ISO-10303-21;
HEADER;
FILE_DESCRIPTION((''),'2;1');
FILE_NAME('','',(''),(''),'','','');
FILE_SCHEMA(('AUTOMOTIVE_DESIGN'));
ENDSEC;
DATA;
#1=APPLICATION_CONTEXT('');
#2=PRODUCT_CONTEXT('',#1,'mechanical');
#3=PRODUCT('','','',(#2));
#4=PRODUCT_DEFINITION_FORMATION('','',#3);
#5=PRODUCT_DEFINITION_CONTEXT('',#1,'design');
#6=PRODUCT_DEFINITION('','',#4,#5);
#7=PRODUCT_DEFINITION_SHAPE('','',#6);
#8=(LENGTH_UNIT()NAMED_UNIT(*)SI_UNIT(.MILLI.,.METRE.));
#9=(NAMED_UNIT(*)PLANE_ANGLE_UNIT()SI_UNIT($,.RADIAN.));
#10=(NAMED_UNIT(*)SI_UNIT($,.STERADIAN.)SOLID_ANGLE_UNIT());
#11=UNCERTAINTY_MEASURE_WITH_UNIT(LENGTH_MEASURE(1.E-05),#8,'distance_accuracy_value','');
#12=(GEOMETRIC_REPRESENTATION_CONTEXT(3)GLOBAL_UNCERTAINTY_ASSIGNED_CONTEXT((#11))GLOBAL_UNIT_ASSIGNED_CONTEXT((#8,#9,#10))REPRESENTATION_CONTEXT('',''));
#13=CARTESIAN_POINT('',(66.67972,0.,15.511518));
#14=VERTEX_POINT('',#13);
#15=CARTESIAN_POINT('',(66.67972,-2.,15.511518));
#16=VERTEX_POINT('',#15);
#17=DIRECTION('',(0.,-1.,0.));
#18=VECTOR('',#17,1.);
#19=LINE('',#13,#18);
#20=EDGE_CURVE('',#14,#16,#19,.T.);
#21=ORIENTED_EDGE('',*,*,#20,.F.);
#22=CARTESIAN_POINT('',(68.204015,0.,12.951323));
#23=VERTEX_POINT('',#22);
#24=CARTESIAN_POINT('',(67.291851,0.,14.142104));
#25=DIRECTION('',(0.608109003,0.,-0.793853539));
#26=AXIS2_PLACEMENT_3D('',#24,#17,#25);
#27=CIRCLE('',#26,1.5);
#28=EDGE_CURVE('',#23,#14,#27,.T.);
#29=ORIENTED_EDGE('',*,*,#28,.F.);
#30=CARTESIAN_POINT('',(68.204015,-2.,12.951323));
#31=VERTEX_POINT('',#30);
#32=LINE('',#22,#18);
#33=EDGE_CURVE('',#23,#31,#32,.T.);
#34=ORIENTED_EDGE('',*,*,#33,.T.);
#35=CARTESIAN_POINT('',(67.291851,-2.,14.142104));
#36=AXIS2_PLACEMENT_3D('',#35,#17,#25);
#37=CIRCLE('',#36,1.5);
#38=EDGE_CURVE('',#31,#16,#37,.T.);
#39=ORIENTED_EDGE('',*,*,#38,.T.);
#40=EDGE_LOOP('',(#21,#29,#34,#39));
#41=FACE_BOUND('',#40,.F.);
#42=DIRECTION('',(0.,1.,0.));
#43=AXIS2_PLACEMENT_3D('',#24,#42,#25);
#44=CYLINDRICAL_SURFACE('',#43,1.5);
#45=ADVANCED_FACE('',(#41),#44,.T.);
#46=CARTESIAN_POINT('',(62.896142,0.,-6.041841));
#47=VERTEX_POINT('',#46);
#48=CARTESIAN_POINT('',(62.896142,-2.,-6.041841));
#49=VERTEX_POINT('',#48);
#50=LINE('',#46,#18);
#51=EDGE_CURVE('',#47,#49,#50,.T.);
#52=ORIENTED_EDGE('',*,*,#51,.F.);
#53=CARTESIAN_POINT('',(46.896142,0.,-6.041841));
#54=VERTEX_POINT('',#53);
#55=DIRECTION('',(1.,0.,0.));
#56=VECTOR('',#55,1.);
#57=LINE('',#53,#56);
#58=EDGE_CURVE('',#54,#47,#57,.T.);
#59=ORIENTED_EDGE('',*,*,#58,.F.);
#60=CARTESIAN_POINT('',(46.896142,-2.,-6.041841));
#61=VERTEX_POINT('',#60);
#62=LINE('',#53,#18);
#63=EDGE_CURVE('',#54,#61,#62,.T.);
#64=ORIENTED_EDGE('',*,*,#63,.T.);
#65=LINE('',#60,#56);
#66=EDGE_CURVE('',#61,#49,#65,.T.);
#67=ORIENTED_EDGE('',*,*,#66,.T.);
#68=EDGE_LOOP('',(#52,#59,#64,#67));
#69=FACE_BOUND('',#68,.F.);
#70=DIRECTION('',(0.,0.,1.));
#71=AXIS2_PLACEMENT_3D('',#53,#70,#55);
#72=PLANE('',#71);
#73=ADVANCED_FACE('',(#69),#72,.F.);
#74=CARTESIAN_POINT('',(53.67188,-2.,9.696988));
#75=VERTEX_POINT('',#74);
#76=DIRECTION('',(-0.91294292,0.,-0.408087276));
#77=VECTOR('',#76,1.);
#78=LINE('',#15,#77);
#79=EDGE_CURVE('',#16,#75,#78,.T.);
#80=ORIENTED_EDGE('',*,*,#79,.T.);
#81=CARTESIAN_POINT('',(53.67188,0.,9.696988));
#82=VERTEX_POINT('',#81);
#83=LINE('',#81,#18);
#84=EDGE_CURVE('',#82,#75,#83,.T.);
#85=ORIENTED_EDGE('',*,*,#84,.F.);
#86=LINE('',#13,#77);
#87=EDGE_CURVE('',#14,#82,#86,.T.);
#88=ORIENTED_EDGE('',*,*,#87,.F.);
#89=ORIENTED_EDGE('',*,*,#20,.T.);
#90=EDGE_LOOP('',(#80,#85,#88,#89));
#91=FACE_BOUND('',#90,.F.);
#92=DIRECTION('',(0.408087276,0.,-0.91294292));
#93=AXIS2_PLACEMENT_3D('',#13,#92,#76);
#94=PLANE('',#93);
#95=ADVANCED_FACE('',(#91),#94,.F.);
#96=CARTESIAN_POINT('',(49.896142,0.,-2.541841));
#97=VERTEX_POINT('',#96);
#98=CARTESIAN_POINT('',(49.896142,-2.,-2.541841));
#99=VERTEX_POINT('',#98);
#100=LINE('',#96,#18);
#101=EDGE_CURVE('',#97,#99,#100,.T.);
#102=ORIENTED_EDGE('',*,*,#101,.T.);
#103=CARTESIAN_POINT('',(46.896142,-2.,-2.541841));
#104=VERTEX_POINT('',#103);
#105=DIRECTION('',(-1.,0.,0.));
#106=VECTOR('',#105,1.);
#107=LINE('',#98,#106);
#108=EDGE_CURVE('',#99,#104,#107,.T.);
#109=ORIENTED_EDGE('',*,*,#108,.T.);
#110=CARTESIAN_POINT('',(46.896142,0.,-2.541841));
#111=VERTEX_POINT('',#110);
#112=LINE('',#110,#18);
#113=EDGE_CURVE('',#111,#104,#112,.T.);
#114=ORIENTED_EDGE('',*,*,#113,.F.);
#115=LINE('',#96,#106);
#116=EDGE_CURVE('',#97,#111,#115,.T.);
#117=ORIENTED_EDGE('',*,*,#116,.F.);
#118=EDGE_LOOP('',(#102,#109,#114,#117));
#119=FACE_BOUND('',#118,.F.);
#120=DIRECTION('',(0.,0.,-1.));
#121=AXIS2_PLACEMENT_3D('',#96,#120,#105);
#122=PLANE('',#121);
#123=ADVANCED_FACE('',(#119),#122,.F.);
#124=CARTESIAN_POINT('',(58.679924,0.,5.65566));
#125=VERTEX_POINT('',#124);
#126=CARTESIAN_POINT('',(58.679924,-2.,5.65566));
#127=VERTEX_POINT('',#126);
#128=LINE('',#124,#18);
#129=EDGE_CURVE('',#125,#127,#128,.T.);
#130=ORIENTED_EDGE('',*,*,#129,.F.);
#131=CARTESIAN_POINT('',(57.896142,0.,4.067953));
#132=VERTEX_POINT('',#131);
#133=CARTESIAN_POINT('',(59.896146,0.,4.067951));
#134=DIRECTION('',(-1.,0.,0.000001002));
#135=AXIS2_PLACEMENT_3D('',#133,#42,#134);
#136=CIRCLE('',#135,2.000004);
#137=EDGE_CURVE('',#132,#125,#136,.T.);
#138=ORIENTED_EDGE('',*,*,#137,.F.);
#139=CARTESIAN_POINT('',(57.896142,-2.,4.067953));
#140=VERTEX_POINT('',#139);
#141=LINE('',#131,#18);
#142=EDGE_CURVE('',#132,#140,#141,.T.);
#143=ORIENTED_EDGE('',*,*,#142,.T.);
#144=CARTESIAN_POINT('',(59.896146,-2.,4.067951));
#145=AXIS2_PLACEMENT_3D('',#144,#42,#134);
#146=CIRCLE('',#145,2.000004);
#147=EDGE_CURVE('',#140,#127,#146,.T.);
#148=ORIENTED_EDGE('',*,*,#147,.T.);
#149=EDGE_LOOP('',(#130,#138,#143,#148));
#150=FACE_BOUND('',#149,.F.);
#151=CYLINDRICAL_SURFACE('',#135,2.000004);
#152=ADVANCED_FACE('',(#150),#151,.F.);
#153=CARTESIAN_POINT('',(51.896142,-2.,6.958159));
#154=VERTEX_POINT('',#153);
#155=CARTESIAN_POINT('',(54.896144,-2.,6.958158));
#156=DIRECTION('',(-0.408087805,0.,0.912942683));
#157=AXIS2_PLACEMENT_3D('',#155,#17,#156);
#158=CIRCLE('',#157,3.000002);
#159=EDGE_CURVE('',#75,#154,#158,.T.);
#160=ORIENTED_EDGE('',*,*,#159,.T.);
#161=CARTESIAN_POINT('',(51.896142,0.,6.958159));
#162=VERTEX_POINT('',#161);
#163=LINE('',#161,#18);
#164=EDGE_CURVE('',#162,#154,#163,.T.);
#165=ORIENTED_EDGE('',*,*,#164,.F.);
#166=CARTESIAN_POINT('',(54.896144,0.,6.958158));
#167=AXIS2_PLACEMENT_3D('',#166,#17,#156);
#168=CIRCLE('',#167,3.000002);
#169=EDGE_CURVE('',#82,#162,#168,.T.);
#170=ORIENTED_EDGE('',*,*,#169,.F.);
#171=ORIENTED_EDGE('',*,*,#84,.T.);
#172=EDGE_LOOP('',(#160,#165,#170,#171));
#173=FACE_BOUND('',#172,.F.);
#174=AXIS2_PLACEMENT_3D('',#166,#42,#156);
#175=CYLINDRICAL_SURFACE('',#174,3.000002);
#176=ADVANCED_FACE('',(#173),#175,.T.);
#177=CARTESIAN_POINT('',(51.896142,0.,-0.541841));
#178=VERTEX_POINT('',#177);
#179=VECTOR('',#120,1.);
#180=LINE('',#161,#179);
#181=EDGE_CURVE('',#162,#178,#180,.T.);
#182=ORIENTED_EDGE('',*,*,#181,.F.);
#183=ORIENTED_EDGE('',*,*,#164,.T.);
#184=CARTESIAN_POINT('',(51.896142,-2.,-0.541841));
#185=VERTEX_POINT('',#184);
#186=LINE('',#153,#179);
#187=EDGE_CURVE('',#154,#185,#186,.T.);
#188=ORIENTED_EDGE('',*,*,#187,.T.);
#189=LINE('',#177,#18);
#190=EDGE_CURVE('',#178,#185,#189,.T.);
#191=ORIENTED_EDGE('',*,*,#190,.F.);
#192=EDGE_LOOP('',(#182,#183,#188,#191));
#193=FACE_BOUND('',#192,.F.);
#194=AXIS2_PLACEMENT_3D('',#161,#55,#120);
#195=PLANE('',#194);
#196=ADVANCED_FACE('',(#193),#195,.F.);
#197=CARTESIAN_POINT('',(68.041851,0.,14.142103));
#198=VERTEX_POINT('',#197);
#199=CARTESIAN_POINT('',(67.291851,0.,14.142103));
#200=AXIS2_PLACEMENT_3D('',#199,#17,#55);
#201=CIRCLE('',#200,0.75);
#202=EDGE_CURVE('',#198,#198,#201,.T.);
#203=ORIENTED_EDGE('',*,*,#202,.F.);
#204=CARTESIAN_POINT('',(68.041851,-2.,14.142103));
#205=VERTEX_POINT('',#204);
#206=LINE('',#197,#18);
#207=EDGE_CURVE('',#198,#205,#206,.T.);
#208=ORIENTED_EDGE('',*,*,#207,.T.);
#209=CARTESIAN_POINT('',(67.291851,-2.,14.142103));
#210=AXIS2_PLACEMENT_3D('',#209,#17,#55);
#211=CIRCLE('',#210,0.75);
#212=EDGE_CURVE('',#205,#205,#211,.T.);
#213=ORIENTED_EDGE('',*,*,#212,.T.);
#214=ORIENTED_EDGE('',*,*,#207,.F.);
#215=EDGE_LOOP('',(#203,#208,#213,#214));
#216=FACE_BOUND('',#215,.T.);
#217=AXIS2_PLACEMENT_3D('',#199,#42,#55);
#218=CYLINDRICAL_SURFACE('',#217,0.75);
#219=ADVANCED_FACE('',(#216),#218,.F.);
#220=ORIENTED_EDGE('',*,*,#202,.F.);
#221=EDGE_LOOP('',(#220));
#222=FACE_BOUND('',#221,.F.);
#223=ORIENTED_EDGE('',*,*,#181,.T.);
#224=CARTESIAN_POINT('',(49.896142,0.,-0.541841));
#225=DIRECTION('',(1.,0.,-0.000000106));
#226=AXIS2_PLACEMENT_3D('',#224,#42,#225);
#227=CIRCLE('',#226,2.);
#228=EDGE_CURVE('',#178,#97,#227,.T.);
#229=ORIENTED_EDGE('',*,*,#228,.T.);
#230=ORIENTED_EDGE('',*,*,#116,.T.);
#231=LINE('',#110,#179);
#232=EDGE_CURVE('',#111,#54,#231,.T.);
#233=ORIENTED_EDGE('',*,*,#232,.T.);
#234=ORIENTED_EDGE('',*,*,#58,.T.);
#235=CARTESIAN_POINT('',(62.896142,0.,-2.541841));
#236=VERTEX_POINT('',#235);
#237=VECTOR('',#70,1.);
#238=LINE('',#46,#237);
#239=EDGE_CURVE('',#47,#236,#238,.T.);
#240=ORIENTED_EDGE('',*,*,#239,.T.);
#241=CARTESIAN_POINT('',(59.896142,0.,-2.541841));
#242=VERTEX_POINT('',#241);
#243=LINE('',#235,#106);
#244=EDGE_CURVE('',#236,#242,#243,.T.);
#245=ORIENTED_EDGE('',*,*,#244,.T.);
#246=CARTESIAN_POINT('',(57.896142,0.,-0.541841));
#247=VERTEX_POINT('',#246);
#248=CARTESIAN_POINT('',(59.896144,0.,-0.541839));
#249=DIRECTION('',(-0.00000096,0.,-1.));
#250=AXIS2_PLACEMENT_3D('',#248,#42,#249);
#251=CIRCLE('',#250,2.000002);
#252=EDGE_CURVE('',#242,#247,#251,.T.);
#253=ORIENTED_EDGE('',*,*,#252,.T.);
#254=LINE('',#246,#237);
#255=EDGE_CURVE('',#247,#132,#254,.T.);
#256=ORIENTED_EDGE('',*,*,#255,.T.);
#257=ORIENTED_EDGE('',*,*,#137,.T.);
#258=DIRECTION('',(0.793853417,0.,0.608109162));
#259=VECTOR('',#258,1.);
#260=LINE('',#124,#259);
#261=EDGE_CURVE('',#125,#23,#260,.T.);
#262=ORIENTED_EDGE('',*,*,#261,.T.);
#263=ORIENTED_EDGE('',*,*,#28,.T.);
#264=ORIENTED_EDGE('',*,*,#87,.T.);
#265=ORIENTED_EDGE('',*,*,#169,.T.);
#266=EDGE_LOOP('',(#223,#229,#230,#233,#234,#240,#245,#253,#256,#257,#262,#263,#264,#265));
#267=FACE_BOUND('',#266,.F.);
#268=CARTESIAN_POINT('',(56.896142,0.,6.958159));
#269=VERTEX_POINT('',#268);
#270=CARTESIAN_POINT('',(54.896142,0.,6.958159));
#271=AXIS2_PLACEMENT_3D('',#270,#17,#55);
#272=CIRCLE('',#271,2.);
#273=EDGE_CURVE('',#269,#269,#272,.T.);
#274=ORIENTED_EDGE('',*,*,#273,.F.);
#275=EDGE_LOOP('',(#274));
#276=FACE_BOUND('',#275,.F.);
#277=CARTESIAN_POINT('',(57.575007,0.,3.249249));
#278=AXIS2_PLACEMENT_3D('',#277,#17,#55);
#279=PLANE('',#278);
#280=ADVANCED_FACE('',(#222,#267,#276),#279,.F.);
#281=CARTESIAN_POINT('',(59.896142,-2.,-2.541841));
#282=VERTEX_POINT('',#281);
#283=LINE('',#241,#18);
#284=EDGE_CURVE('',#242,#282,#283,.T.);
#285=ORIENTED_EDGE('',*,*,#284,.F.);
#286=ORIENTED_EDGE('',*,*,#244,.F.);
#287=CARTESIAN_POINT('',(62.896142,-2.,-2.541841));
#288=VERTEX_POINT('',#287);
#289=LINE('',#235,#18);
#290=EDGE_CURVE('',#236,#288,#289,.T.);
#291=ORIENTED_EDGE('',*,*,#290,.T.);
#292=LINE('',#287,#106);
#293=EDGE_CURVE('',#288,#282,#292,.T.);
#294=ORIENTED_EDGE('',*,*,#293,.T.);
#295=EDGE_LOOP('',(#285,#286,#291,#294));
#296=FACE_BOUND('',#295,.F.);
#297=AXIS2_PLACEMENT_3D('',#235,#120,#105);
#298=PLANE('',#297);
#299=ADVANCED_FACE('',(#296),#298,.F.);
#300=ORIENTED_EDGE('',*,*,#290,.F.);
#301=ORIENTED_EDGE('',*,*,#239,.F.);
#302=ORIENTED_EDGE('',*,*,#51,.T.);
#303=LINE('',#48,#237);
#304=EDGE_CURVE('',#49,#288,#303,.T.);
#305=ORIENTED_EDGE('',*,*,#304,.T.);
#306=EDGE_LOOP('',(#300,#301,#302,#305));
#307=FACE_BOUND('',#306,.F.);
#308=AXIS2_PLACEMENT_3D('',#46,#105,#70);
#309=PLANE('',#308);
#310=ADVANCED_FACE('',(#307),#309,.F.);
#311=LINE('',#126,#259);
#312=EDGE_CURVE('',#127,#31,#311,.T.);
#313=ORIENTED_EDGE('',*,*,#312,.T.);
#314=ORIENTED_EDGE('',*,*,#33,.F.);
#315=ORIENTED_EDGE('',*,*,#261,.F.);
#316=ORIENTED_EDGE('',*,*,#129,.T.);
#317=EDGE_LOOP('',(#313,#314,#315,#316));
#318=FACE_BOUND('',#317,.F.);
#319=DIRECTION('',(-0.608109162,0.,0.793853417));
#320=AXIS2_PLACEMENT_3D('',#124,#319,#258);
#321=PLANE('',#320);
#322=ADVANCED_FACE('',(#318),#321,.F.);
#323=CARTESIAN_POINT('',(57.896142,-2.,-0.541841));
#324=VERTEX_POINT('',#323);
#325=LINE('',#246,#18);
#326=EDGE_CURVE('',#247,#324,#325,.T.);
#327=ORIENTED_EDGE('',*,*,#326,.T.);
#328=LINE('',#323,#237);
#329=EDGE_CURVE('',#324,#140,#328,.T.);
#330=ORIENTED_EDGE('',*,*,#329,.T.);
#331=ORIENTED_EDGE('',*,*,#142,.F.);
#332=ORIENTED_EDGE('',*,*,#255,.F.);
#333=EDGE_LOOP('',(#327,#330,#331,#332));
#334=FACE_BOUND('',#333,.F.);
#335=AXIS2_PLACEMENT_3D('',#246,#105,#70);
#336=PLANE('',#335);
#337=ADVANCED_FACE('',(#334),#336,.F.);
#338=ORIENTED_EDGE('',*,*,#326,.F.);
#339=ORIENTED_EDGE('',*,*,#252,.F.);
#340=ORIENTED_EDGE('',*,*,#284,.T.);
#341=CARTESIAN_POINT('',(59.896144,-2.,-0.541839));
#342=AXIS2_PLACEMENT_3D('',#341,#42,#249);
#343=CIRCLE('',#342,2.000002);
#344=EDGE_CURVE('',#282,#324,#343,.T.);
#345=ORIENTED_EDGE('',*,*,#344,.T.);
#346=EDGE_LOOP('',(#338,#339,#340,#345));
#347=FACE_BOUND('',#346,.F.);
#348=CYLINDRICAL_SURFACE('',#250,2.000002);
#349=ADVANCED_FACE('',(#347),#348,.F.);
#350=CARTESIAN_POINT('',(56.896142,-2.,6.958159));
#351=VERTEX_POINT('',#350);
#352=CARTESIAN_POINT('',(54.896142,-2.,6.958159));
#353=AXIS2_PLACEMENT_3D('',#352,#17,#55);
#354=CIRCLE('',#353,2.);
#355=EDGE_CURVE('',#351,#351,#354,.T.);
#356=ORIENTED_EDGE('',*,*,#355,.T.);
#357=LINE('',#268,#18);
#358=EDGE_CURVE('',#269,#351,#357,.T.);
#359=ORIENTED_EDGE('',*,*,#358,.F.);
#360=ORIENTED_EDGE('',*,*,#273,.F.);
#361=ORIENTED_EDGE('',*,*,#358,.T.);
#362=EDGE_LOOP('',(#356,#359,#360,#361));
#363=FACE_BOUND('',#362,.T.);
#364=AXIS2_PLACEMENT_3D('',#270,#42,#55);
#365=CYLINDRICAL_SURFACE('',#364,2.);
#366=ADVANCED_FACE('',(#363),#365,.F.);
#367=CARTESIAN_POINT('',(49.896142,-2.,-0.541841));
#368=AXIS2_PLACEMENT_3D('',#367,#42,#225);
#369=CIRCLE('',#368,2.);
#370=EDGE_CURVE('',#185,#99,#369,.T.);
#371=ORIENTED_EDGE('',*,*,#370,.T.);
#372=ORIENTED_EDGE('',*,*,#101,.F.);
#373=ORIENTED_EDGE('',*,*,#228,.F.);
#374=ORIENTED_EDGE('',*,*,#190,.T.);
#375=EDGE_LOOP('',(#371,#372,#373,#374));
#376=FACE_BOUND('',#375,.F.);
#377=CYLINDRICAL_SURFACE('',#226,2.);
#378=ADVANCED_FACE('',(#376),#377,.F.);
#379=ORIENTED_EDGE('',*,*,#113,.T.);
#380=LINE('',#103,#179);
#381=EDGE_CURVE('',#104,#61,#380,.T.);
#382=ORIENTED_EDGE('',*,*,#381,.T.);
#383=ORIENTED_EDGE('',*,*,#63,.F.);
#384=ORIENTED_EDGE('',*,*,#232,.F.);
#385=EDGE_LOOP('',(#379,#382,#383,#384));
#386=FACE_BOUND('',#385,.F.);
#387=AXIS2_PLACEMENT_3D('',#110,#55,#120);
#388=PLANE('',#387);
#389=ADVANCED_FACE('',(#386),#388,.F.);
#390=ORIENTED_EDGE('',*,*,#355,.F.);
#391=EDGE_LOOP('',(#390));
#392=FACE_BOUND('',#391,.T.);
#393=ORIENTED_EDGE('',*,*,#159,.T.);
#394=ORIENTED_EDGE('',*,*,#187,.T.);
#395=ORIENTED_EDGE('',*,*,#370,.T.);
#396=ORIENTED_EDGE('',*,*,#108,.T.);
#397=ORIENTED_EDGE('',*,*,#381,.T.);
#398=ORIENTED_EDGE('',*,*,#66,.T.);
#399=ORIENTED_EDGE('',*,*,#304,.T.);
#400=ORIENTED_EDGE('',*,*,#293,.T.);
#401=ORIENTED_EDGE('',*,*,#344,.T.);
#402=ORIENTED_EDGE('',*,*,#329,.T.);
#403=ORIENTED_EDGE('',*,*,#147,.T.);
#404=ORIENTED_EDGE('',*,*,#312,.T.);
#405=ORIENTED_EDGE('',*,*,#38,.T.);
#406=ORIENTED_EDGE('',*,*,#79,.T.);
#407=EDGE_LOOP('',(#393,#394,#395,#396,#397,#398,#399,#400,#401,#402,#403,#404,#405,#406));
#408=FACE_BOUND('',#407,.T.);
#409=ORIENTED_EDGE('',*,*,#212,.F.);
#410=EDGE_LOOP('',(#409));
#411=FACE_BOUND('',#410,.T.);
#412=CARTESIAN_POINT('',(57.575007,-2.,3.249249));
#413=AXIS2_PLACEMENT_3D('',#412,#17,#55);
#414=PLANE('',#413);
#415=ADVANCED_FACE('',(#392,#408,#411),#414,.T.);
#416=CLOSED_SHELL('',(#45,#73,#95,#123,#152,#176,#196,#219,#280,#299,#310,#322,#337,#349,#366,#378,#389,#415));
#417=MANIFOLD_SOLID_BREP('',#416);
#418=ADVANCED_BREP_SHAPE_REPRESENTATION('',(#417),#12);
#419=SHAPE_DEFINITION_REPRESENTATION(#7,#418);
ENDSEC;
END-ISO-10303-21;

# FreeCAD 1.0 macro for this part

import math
import FreeCAD as App
import Part
import Sketcher

V = App.Vector
Q = App.Units.Quantity

doc = App.newDocument("Part")
body = doc.addObject("PartDesign::Body", "Body")

# Sketch on XZ plane
sketch1 = body.newObject("Sketcher::SketchObject", "Sketch")
sketch1.AttachmentSupport = (doc.getObject("XZ_Plane"), [""])
sketch1.MapMode = "FlatFace"
sketch1.addGeometry(Part.LineSegment(V(66.7, 15.5, 0), V(53.7, 9.7, 0)), False)
sketch1.addGeometry(Part.ArcOfCircle(Part.Circle(V(54.9, 7, 0), V(0, 0, 1), 3), math.radians(114), math.radians(180)), False)
sketch1.addGeometry(Part.LineSegment(V(51.9, 7, 0), V(51.9, -0.5, 0)), False)
sketch1.addGeometry(Part.ArcOfCircle(Part.Circle(V(49.9, -0.5, 0), V(0, 0, 1), 2), math.radians(-90), math.radians(0)), False)
sketch1.addGeometry(Part.LineSegment(V(49.9, -2.5, 0), V(46.9, -2.5, 0)), False)
sketch1.addGeometry(Part.LineSegment(V(46.9, -2.5, 0), V(46.9, -6, 0)), False)
sketch1.addGeometry(Part.LineSegment(V(46.9, -6, 0), V(62.9, -6, 0)), False)
sketch1.addGeometry(Part.LineSegment(V(62.9, -6, 0), V(62.9, -2.5, 0)), False)
sketch1.addGeometry(Part.LineSegment(V(62.9, -2.5, 0), V(59.9, -2.5, 0)), False)
sketch1.addGeometry(Part.ArcOfCircle(Part.Circle(V(59.9, -0.5, 0), V(0, 0, 1), 2), math.radians(-180), math.radians(-90)), False)
sketch1.addGeometry(Part.LineSegment(V(57.9, -0.5, 0), V(57.9, 4.1, 0)), False)
sketch1.addGeometry(Part.ArcOfCircle(Part.Circle(V(59.9, 4.1, 0), V(0, 0, 1), 2), math.radians(127), math.radians(180)), False)
sketch1.addGeometry(Part.LineSegment(V(58.7, 5.7, 0), V(68.2, 13, 0)), False)
sketch1.addGeometry(Part.ArcOfCircle(Part.Circle(V(67.3, 14.1, 0), V(0, 0, 1), 1.5), math.radians(-53), math.radians(114)), False)
sketch1.addGeometry(Part.Circle(V(54.9, 7, 0), V(0, 0, 1), 2), False)
sketch1.addGeometry(Part.Circle(V(67.3, 14.1, 0), V(0, 0, 1), 0.8), False)
sketch1.addConstraint(Sketcher.Constraint("Tangent", 0, 2, 1, 1))
sketch1.addConstraint(Sketcher.Constraint("Tangent", 1, 2, 2, 1))
sketch1.addConstraint(Sketcher.Constraint("Tangent", 2, 2, 3, 2))
sketch1.addConstraint(Sketcher.Constraint("Tangent", 3, 1, 4, 1))
sketch1.addConstraint(Sketcher.Constraint("Coincident", 4, 2, 5, 1))
sketch1.addConstraint(Sketcher.Constraint("Coincident", 5, 2, 6, 1))
sketch1.addConstraint(Sketcher.Constraint("Coincident", 6, 2, 7, 1))
sketch1.addConstraint(Sketcher.Constraint("Coincident", 7, 2, 8, 1))
sketch1.addConstraint(Sketcher.Constraint("Tangent", 8, 2, 9, 2))
sketch1.addConstraint(Sketcher.Constraint("Tangent", 9, 1, 10, 1))
sketch1.addConstraint(Sketcher.Constraint("Tangent", 10, 2, 11, 2))
sketch1.addConstraint(Sketcher.Constraint("Tangent", 11, 1, 12, 1))
sketch1.addConstraint(Sketcher.Constraint("Tangent", 12, 2, 13, 1))
sketch1.addConstraint(Sketcher.Constraint("Tangent", 13, 2, 0, 1))
sketch1.addConstraint(Sketcher.Constraint("Vertical", 2))
sketch1.addConstraint(Sketcher.Constraint("Horizontal", 4))
sketch1.addConstraint(Sketcher.Constraint("Vertical", 5))
sketch1.addConstraint(Sketcher.Constraint("Horizontal", 6))
sketch1.addConstraint(Sketcher.Constraint("Vertical", 7))
sketch1.addConstraint(Sketcher.Constraint("Horizontal", 8))
sketch1.addConstraint(Sketcher.Constraint("Vertical", 10))
sketch1.addConstraint(Sketcher.Constraint("Coincident", 14, 3, 1, 3))
sketch1.addConstraint(Sketcher.Constraint("Coincident", 15, 3, 13, 3))
sketch1.addConstraint(Sketcher.Constraint("Equal", 3, 9))
sketch1.addConstraint(Sketcher.Constraint("Equal", 9, 11))
sketch1.addConstraint(Sketcher.Constraint("Equal", 9, 14))
sketch1.addConstraint(Sketcher.Constraint("Horizontal", 3, 3, 9, 3))
sketch1.addConstraint(Sketcher.Constraint("Equal", 4, 8))
sketch1.addConstraint(Sketcher.Constraint("Diameter", 14, Q("4 mm")))
sketch1.addConstraint(Sketcher.Constraint("Diameter", 15, Q("1.5 mm")))
sketch1.addConstraint(Sketcher.Constraint("Radius", 13, Q("1.5 mm")))
sketch1.addConstraint(Sketcher.Constraint("DistanceX", 4, 2, 4, 1, Q("3 mm")))
sketch1.addConstraint(Sketcher.Constraint("DistanceX", 6, 1, 6, 2, Q("16 mm")))
sketch1.addConstraint(Sketcher.Constraint("DistanceY", 2, 2, 2, 1, Q("7.5 mm")))
sketch1.addConstraint(Sketcher.Constraint("DistanceY", 5, 2, 5, 1, Q("3.5 mm")))
sketch1.addConstraint(Sketcher.Constraint("DistanceX", 1, 3, 9, 3, Q("5 mm")))
sketch1.addConstraint(Sketcher.Constraint("DistanceY", 11, 1, 14, 3, Q("1.302499 mm")))
sketch1.addConstraint(Sketcher.Constraint("Distance", 0, Q("14.248251 mm")))
sketch1.addConstraint(Sketcher.Constraint("Distance", 12, Q("11.997292 mm")))
sketch1.addConstraint(Sketcher.Constraint("DistanceX", -1, 1, 3, 3, Q("49.896142 mm")))
sketch1.addConstraint(Sketcher.Constraint("DistanceY", 3, 3, -1, 1, Q("0.541841 mm")))
pad1 = body.newObject("PartDesign::Pad", "Pad")
pad1.Profile = sketch1
pad1.Length = 2

doc.recompute()
